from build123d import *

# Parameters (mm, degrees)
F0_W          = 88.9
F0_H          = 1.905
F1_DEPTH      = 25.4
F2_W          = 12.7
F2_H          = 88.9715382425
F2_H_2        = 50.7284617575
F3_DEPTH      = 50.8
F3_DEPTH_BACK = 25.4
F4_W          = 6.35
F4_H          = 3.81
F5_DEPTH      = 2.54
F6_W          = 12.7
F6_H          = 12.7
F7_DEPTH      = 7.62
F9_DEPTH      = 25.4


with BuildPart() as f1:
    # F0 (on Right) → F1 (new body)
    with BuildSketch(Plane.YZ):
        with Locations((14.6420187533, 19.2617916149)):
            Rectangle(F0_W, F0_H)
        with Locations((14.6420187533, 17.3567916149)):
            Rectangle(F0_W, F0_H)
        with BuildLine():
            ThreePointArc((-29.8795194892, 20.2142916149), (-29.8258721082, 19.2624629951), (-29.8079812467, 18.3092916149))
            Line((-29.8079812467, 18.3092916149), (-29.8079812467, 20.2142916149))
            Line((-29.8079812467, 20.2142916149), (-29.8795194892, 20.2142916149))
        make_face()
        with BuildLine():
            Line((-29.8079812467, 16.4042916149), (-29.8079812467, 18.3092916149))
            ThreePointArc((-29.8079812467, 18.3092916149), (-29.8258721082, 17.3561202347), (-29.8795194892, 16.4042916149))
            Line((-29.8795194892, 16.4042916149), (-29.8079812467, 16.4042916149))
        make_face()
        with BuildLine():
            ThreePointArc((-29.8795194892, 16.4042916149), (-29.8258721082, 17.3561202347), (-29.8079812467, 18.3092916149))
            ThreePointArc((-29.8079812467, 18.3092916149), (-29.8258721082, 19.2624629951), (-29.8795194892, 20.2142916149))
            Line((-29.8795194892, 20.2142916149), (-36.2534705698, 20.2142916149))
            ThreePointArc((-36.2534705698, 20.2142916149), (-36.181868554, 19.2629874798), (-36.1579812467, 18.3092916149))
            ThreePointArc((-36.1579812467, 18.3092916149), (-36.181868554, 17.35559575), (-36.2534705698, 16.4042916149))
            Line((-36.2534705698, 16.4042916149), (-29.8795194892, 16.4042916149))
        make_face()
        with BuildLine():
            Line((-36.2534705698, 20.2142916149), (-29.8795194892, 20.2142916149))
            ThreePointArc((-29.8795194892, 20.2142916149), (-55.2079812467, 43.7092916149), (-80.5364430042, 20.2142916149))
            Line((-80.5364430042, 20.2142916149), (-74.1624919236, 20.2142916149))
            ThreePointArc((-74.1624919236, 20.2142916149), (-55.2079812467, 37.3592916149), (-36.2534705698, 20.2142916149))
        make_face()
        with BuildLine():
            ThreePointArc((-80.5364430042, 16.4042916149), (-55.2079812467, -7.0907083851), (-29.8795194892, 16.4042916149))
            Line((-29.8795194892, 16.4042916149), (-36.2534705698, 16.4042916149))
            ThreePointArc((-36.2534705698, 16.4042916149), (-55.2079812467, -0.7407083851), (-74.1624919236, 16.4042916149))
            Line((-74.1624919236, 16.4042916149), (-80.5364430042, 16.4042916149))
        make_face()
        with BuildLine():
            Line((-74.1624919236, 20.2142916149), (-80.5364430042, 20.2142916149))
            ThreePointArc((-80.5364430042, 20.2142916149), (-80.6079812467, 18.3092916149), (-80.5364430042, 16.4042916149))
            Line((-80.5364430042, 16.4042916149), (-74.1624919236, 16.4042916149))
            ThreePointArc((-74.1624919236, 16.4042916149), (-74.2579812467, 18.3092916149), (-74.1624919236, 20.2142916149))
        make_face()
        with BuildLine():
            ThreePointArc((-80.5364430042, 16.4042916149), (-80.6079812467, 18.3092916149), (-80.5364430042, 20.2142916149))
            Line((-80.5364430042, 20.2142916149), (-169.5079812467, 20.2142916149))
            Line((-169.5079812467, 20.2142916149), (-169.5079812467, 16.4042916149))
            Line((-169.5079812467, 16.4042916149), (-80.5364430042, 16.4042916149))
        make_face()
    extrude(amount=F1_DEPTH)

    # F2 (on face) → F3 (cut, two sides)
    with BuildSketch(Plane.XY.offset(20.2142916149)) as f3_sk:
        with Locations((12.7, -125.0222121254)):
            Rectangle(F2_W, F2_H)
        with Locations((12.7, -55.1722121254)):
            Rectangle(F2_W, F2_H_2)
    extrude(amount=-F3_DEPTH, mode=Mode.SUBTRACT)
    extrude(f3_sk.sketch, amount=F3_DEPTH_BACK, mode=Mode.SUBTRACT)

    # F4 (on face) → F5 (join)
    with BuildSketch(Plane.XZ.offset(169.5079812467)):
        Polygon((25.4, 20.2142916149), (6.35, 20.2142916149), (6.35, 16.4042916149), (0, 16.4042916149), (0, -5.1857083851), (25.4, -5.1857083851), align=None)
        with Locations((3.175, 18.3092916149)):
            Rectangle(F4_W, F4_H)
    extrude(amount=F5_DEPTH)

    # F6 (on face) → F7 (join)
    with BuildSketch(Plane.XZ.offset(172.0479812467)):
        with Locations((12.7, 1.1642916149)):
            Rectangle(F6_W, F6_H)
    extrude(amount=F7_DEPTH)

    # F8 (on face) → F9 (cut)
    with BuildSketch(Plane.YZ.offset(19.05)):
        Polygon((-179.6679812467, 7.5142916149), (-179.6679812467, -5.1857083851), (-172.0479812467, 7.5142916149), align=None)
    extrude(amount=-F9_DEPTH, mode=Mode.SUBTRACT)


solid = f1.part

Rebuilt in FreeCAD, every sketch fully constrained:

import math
import FreeCAD as App
import Part
import Sketcher
Q = App.Units.Quantity

doc = App.newDocument("Part")
params = doc.addObject("Spreadsheet::Sheet", "Params")
for row, (alias, value) in enumerate([
    ("sketch1_radius", "1 in"),
    ("sketch1_radius2", "0.75 in"),
    ("sketch1_height", "0.15 in"),
    ("pad1_length", "1 in"),
    ("sketch2_width", "0.5 in"),
    ("sketch2_height", "5.5 in"),
    ("sketch3_width", "1 in"),
    ("pad2_length", "0.1 in"),
    ("sketch4_width", "0.5 in"),
    ("pad3_length", "0.3 in"),
    ("sketch5_width", "0.3 in"),
    ("sketch5_height", "0.5 in"),
    ("pocket2_length", "1 in"),
], start=1):
    params.set(f"A{row}", alias)
    params.set(f"B{row}", "=" + value)
    params.setAlias(f"B{row}", alias)

body = doc.addObject("PartDesign::Body", "Body")

sketch1 = doc.addObject("Sketcher::SketchObject", "Sketch")
body.addObject(sketch1)
sketch1.AttachmentSupport = (doc.YZ_Plane, [""])
sketch1.MapMode = "FlatFace"
sketch1.addGeometry([
    Part.LineSegment(App.Vector(59.1, 16.4, 0), App.Vector(59.1, 20.2, 0)),
    Part.LineSegment(App.Vector(59.1, 20.2, 0), App.Vector(-29.9, 20.2, 0)),
    Part.ArcOfCircle(Part.Circle(App.Vector(-55.2, 18.3, 0), App.Vector(0, 0, 1), 25.4), math.radians(4), math.radians(176)),
    Part.LineSegment(App.Vector(-80.5, 20.2, 0), App.Vector(-169.5, 20.2, 0)),
    Part.LineSegment(App.Vector(-169.5, 20.2, 0), App.Vector(-169.5, 16.4, 0)),
    Part.LineSegment(App.Vector(-169.5, 16.4, 0), App.Vector(-80.5, 16.4, 0)),
    Part.ArcOfCircle(Part.Circle(App.Vector(-55.2, 18.3, 0), App.Vector(0, 0, 1), 25.4), math.radians(-176), math.radians(-4)),
    Part.LineSegment(App.Vector(-29.9, 16.4, 0), App.Vector(59.1, 16.4, 0)),
    Part.ArcOfCircle(Part.Circle(App.Vector(-55.2, 18.3, 0), App.Vector(0, 0, 1), 19.1), math.radians(6), math.radians(174)),
    Part.ArcOfCircle(Part.Circle(App.Vector(-55.2, 18.3, 0), App.Vector(0, 0, 1), 19.1), math.radians(0), math.radians(5.74)),
    Part.ArcOfCircle(Part.Circle(App.Vector(-55.2, 18.3, 0), App.Vector(0, 0, 1), 19.1), math.radians(-5.74), math.radians(0)),
    Part.ArcOfCircle(Part.Circle(App.Vector(-55.2, 18.3, 0), App.Vector(0, 0, 1), 19.1), math.radians(-174), math.radians(-6)),
    Part.ArcOfCircle(Part.Circle(App.Vector(-55.2, 18.3, 0), App.Vector(0, 0, 1), 19.1), math.radians(174.26), math.radians(185.74)),
], False)
sketch1.addConstraint([
    Sketcher.Constraint("Coincident", 0, 2, 1, 1),
    Sketcher.Constraint("Coincident", 1, 2, 2, 1),
    Sketcher.Constraint("Coincident", 2, 2, 3, 1),
    Sketcher.Constraint("Coincident", 3, 2, 4, 1),
    Sketcher.Constraint("Coincident", 4, 2, 5, 1),
    Sketcher.Constraint("Coincident", 5, 2, 6, 1),
    Sketcher.Constraint("Coincident", 6, 2, 7, 1),
    Sketcher.Constraint("Coincident", 7, 2, 0, 1),
    Sketcher.Constraint("Tangent", 8, 1, 9, 2),
    Sketcher.Constraint("Tangent", 9, 1, 10, 2),
    Sketcher.Constraint("Tangent", 10, 1, 11, 2),
    Sketcher.Constraint("Tangent", 11, 1, 12, 2),
    Sketcher.Constraint("Tangent", 12, 1, 8, 2),
    Sketcher.Constraint("Vertical", 0),
    Sketcher.Constraint("Horizontal", 1),
    Sketcher.Constraint("Horizontal", 3),
    Sketcher.Constraint("Vertical", 4),
    Sketcher.Constraint("Horizontal", 5),
    Sketcher.Constraint("Horizontal", 7),
    Sketcher.Constraint("Coincident", 6, 3, 2, 3),
    Sketcher.Constraint("Coincident", 8, 3, 2, 3),
    Sketcher.Constraint("Coincident", 10, 3, 2, 3),
    Sketcher.Constraint("Equal", 2, 6),
    Sketcher.Constraint("Horizontal", 1, 2, 2, 2),
    Sketcher.Constraint("Horizontal", 5, 2, 6, 2),
    Sketcher.Constraint("Horizontal", 3, 2, 8, 1),
    Sketcher.Constraint("Horizontal", 12, 3, 9, 1),
    Sketcher.Constraint("Horizontal", 7, 2, 10, 1),
    Sketcher.Constraint("Horizontal", 10, 1, 11, 1),
    Sketcher.Constraint("Horizontal", 8, 1, 12, 1),
    Sketcher.Constraint("Vertical", 2, 2, 5, 2),
    Sketcher.Constraint("Equal", 1, 3),
    Sketcher.Constraint("Radius", 2, Q("1 in")),
    Sketcher.Constraint("Radius", 8, Q("0.75 in")),
    Sketcher.Constraint("DistanceY", 0, 1, 0, 2, Q("0.15 in")),
    Sketcher.Constraint("DistanceX", 12, 3, 0, 2, Q("4.5 in")),
    Sketcher.Constraint("DistanceX", 2, 3, -1, 1, Q("55.207981 mm")),
    Sketcher.Constraint("DistanceY", -1, 1, 2, 3, Q("18.309292 mm")),
])
sketch1.setExpression("Constraints[32]", "Params.sketch1_radius")
sketch1.setExpression("Constraints[33]", "Params.sketch1_radius2")
sketch1.setExpression("Constraints[34]", "Params.sketch1_height")
pad1 = doc.addObject("PartDesign::Pad", "Pad")
body.addObject(pad1)
pad1.Profile = sketch1
pad1.setExpression("Length", "Params.pad1_length")

sketch2 = doc.addObject("Sketcher::SketchObject", "Sketch001")
body.addObject(sketch2)
sketch2.AttachmentSupport = (doc.XY_Plane, [""])
sketch2.MapMode = "FlatFace"
sketch2.AttachmentOffset = App.Placement(App.Vector(0, 0, 20.214292), App.Rotation())
sketch2.addGeometry([
    Part.LineSegment(App.Vector(6, -170, 0), App.Vector(19, -170, 0)),
    Part.LineSegment(App.Vector(19, -170, 0), App.Vector(19, -30, 0)),
    Part.LineSegment(App.Vector(19, -30, 0), App.Vector(6, -30, 0)),
    Part.LineSegment(App.Vector(6, -30, 0), App.Vector(6, -170, 0)),
], False)
sketch2.addConstraint([
    Sketcher.Constraint("Coincident", 0, 2, 1, 1),
    Sketcher.Constraint("Coincident", 1, 2, 2, 1),
    Sketcher.Constraint("Coincident", 2, 2, 3, 1),
    Sketcher.Constraint("Coincident", 3, 2, 0, 1),
    Sketcher.Constraint("Horizontal", 0),
    Sketcher.Constraint("Vertical", 1),
    Sketcher.Constraint("Horizontal", 2),
    Sketcher.Constraint("Vertical", 3),
    Sketcher.Constraint("DistanceX", 0, 1, 0, 2, Q("0.5 in")),
    Sketcher.Constraint("DistanceY", 1, 1, 1, 2, Q("5.5 in")),
    Sketcher.Constraint("DistanceX", -1, 1, 0, 2, Q("0.75 in")),
    Sketcher.Constraint("DistanceY", 0, 2, -1, 1, Q("169.507981 mm")),
])
sketch2.setExpression("Constraints[8]", "Params.sketch2_width")
sketch2.setExpression("Constraints[9]", "Params.sketch2_height")
pocket1 = doc.addObject("PartDesign::Pocket", "Pocket")
body.addObject(pocket1)
pocket1.Profile = sketch2
pocket1.Type = "ThroughAll"
pocket1.Midplane = True

sketch3 = doc.addObject("Sketcher::SketchObject", "Sketch002")
body.addObject(sketch3)
sketch3.AttachmentSupport = (doc.XZ_Plane, [""])
sketch3.MapMode = "FlatFace"
sketch3.AttachmentOffset = App.Placement(App.Vector(0, 0, 169.507981), App.Rotation())
sketch3.addGeometry([
    Part.LineSegment(App.Vector(25, 20, 0), App.Vector(0, 20, 0)),
    Part.LineSegment(App.Vector(0, 20, 0), App.Vector(0, -5, 0)),
    Part.LineSegment(App.Vector(0, -5, 0), App.Vector(25, -5, 0)),
    Part.LineSegment(App.Vector(25, -5, 0), App.Vector(25, 20, 0)),
], False)
sketch3.addConstraint([
    Sketcher.Constraint("Coincident", 0, 2, 1, 1),
    Sketcher.Constraint("Coincident", 1, 2, 2, 1),
    Sketcher.Constraint("Coincident", 2, 2, 3, 1),
    Sketcher.Constraint("Coincident", 3, 2, 0, 1),
    Sketcher.Constraint("Horizontal", 0),
    Sketcher.Constraint("Vertical", 1),
    Sketcher.Constraint("Horizontal", 2),
    Sketcher.Constraint("Vertical", 3),
    Sketcher.Constraint("PointOnObject", 0, 2, -2),
    Sketcher.Constraint("Equal", 2, 1),
    Sketcher.Constraint("DistanceX", 0, 2, 0, 1, Q("1 in")),
    Sketcher.Constraint("DistanceY", -1, 1, 0, 2, Q("20.214292 mm")),
])
sketch3.setExpression("Constraints[10]", "Params.sketch3_width")
pad2 = doc.addObject("PartDesign::Pad", "Pad001")
body.addObject(pad2)
pad2.Profile = sketch3
pad2.setExpression("Length", "Params.pad2_length")

sketch4 = doc.addObject("Sketcher::SketchObject", "Sketch003")
body.addObject(sketch4)
sketch4.AttachmentSupport = (doc.XZ_Plane, [""])
sketch4.MapMode = "FlatFace"
sketch4.AttachmentOffset = App.Placement(App.Vector(0, 0, 172.047981), App.Rotation())
sketch4.addGeometry([
    Part.LineSegment(App.Vector(6, 8, 0), App.Vector(6, -5, 0)),
    Part.LineSegment(App.Vector(6, -5, 0), App.Vector(19, -5, 0)),
    Part.LineSegment(App.Vector(19, -5, 0), App.Vector(19, 8, 0)),
    Part.LineSegment(App.Vector(19, 8, 0), App.Vector(6, 8, 0)),
], False)
sketch4.addConstraint([
    Sketcher.Constraint("Coincident", 0, 2, 1, 1),
    Sketcher.Constraint("Coincident", 1, 2, 2, 1),
    Sketcher.Constraint("Coincident", 2, 2, 3, 1),
    Sketcher.Constraint("Coincident", 3, 2, 0, 1),
    Sketcher.Constraint("Vertical", 0),
    Sketcher.Constraint("Horizontal", 1),
    Sketcher.Constraint("Vertical", 2),
    Sketcher.Constraint("Horizontal", 3),
    Sketcher.Constraint("Equal", 3, 0),
    Sketcher.Constraint("DistanceX", 1, 1, 1, 2, Q("0.5 in")),
    Sketcher.Constraint("DistanceX", -1, 1, 0, 2, Q("0.25 in")),
    Sketcher.Constraint("DistanceY", 0, 2, -1, 1, Q("5.185708 mm")),
])
sketch4.setExpression("Constraints[9]", "Params.sketch4_width")
pad3 = doc.addObject("PartDesign::Pad", "Pad002")
body.addObject(pad3)
pad3.Profile = sketch4
pad3.setExpression("Length", "Params.pad3_length")

sketch5 = doc.addObject("Sketcher::SketchObject", "Sketch004")
body.addObject(sketch5)
sketch5.AttachmentSupport = (doc.YZ_Plane, [""])
sketch5.MapMode = "FlatFace"
sketch5.AttachmentOffset = App.Placement(App.Vector(0, 0, 0.75 * 25.4), App.Rotation())
sketch5.addGeometry([
    Part.LineSegment(App.Vector(-180, 8, 0), App.Vector(-180, -5, 0)),
    Part.LineSegment(App.Vector(-180, -5, 0), App.Vector(-172, 8, 0)),
    Part.LineSegment(App.Vector(-172, 8, 0), App.Vector(-180, 8, 0)),
], False)
sketch5.addConstraint([
    Sketcher.Constraint("Coincident", 0, 2, 1, 1),
    Sketcher.Constraint("Coincident", 1, 2, 2, 1),
    Sketcher.Constraint("Coincident", 2, 2, 0, 1),
    Sketcher.Constraint("Vertical", 0),
    Sketcher.Constraint("Horizontal", 2),
    Sketcher.Constraint("DistanceX", 2, 2, 2, 1, Q("0.3 in")),
    Sketcher.Constraint("DistanceY", 0, 2, 0, 1, Q("0.5 in")),
    Sketcher.Constraint("DistanceX", 0, 2, -1, 1, Q("179.667981 mm")),
    Sketcher.Constraint("DistanceY", 0, 2, -1, 1, Q("5.185708 mm")),
])
sketch5.setExpression("Constraints[5]", "Params.sketch5_width")
sketch5.setExpression("Constraints[6]", "Params.sketch5_height")
pocket2 = doc.addObject("PartDesign::Pocket", "Pocket001")
body.addObject(pocket2)
pocket2.Profile = sketch5
pocket2.setExpression("Length", "Params.pocket2_length")

doc.recompute()
